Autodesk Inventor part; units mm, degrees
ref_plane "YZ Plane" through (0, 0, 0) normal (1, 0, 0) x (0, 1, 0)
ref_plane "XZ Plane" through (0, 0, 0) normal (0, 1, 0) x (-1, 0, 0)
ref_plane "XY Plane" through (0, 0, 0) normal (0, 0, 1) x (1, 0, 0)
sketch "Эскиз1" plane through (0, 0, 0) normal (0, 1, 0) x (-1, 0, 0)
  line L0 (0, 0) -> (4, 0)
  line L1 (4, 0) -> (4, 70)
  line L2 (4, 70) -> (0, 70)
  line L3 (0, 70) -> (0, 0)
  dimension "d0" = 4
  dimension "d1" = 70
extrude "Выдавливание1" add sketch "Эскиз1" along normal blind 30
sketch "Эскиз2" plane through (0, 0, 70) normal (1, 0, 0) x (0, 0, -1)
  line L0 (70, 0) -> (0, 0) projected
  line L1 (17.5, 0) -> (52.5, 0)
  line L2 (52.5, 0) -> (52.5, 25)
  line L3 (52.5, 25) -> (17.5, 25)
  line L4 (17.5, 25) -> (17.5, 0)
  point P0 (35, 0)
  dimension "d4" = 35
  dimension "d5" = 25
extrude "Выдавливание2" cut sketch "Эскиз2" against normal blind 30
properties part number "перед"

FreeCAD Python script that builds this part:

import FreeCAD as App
import Part
import Sketcher

doc = App.newDocument("Part")
body = doc.addObject("PartDesign::Body", "Body")

# Sketch on XZ plane
sketch1 = body.newObject("Sketcher::SketchObject", "Sketch")
sketch1.AttachmentSupport = (doc.getObject("XZ_Plane"), [""])
sketch1.MapMode = "FlatFace"
sketch1.addGeometry(Part.LineSegment(App.Vector(0, 70, 0), App.Vector(0, 0, 0)), False)
sketch1.addGeometry(Part.LineSegment(App.Vector(0, 0, 0), App.Vector(-4, 0, 0)), False)
sketch1.addGeometry(Part.LineSegment(App.Vector(-4, 0, 0), App.Vector(-4, 70, 0)), False)
sketch1.addGeometry(Part.LineSegment(App.Vector(-4, 70, 0), App.Vector(0, 70, 0)), False)
sketch1.addConstraint(Sketcher.Constraint("Coincident", 0, 2, 1, 1))
sketch1.addConstraint(Sketcher.Constraint("Coincident", 1, 2, 2, 1))
sketch1.addConstraint(Sketcher.Constraint("Coincident", 2, 2, 3, 1))
sketch1.addConstraint(Sketcher.Constraint("Coincident", 3, 2, 0, 1))
sketch1.addConstraint(Sketcher.Constraint("Vertical", 0))
sketch1.addConstraint(Sketcher.Constraint("Horizontal", 1))
sketch1.addConstraint(Sketcher.Constraint("Vertical", 2))
sketch1.addConstraint(Sketcher.Constraint("Horizontal", 3))
sketch1.addConstraint(Sketcher.Constraint("Coincident", 0, 2, -1, 1))
sketch1.addConstraint(Sketcher.Constraint("DistanceX", 1, 2, 1, 1, 4.0))
sketch1.addConstraint(Sketcher.Constraint("DistanceY", 0, 2, 0, 1, 70.0))
pad1 = body.newObject("PartDesign::Pad", "Pad")
pad1.Profile = sketch1
pad1.Length = 30
pad1.Reversed = True

# Sketch on YZ plane
sketch2 = body.newObject("Sketcher::SketchObject", "Sketch001")
sketch2.AttachmentSupport = (doc.getObject("YZ_Plane"), [""])
sketch2.MapMode = "FlatFace"
sketch2.addGeometry(Part.LineSegment(App.Vector(0, 52, 0), App.Vector(0, 18, 0)), False)
sketch2.addGeometry(Part.LineSegment(App.Vector(0, 18, 0), App.Vector(25, 18, 0)), False)
sketch2.addGeometry(Part.LineSegment(App.Vector(25, 18, 0), App.Vector(25, 52, 0)), False)
sketch2.addGeometry(Part.LineSegment(App.Vector(25, 52, 0), App.Vector(0, 52, 0)), False)
sketch2.addConstraint(Sketcher.Constraint("Coincident", 0, 2, 1, 1))
sketch2.addConstraint(Sketcher.Constraint("Coincident", 1, 2, 2, 1))
sketch2.addConstraint(Sketcher.Constraint("Coincident", 2, 2, 3, 1))
sketch2.addConstraint(Sketcher.Constraint("Coincident", 3, 2, 0, 1))
sketch2.addConstraint(Sketcher.Constraint("Vertical", 0))
sketch2.addConstraint(Sketcher.Constraint("Horizontal", 1))
sketch2.addConstraint(Sketcher.Constraint("Vertical", 2))
sketch2.addConstraint(Sketcher.Constraint("Horizontal", 3))
sketch2.addConstraint(Sketcher.Constraint("PointOnObject", 0, 2, -2))
sketch2.addConstraint(Sketcher.Constraint("DistanceX", 1, 1, 1, 2, 25.0))
sketch2.addConstraint(Sketcher.Constraint("DistanceY", 0, 2, 0, 1, 35.0))
sketch2.addConstraint(Sketcher.Constraint("DistanceY", -1, 1, 0, 2, 17.5))
pocket1 = body.newObject("PartDesign::Pocket", "Pocket")
pocket1.Profile = sketch2
pocket1.Length = 30

doc.recompute()
